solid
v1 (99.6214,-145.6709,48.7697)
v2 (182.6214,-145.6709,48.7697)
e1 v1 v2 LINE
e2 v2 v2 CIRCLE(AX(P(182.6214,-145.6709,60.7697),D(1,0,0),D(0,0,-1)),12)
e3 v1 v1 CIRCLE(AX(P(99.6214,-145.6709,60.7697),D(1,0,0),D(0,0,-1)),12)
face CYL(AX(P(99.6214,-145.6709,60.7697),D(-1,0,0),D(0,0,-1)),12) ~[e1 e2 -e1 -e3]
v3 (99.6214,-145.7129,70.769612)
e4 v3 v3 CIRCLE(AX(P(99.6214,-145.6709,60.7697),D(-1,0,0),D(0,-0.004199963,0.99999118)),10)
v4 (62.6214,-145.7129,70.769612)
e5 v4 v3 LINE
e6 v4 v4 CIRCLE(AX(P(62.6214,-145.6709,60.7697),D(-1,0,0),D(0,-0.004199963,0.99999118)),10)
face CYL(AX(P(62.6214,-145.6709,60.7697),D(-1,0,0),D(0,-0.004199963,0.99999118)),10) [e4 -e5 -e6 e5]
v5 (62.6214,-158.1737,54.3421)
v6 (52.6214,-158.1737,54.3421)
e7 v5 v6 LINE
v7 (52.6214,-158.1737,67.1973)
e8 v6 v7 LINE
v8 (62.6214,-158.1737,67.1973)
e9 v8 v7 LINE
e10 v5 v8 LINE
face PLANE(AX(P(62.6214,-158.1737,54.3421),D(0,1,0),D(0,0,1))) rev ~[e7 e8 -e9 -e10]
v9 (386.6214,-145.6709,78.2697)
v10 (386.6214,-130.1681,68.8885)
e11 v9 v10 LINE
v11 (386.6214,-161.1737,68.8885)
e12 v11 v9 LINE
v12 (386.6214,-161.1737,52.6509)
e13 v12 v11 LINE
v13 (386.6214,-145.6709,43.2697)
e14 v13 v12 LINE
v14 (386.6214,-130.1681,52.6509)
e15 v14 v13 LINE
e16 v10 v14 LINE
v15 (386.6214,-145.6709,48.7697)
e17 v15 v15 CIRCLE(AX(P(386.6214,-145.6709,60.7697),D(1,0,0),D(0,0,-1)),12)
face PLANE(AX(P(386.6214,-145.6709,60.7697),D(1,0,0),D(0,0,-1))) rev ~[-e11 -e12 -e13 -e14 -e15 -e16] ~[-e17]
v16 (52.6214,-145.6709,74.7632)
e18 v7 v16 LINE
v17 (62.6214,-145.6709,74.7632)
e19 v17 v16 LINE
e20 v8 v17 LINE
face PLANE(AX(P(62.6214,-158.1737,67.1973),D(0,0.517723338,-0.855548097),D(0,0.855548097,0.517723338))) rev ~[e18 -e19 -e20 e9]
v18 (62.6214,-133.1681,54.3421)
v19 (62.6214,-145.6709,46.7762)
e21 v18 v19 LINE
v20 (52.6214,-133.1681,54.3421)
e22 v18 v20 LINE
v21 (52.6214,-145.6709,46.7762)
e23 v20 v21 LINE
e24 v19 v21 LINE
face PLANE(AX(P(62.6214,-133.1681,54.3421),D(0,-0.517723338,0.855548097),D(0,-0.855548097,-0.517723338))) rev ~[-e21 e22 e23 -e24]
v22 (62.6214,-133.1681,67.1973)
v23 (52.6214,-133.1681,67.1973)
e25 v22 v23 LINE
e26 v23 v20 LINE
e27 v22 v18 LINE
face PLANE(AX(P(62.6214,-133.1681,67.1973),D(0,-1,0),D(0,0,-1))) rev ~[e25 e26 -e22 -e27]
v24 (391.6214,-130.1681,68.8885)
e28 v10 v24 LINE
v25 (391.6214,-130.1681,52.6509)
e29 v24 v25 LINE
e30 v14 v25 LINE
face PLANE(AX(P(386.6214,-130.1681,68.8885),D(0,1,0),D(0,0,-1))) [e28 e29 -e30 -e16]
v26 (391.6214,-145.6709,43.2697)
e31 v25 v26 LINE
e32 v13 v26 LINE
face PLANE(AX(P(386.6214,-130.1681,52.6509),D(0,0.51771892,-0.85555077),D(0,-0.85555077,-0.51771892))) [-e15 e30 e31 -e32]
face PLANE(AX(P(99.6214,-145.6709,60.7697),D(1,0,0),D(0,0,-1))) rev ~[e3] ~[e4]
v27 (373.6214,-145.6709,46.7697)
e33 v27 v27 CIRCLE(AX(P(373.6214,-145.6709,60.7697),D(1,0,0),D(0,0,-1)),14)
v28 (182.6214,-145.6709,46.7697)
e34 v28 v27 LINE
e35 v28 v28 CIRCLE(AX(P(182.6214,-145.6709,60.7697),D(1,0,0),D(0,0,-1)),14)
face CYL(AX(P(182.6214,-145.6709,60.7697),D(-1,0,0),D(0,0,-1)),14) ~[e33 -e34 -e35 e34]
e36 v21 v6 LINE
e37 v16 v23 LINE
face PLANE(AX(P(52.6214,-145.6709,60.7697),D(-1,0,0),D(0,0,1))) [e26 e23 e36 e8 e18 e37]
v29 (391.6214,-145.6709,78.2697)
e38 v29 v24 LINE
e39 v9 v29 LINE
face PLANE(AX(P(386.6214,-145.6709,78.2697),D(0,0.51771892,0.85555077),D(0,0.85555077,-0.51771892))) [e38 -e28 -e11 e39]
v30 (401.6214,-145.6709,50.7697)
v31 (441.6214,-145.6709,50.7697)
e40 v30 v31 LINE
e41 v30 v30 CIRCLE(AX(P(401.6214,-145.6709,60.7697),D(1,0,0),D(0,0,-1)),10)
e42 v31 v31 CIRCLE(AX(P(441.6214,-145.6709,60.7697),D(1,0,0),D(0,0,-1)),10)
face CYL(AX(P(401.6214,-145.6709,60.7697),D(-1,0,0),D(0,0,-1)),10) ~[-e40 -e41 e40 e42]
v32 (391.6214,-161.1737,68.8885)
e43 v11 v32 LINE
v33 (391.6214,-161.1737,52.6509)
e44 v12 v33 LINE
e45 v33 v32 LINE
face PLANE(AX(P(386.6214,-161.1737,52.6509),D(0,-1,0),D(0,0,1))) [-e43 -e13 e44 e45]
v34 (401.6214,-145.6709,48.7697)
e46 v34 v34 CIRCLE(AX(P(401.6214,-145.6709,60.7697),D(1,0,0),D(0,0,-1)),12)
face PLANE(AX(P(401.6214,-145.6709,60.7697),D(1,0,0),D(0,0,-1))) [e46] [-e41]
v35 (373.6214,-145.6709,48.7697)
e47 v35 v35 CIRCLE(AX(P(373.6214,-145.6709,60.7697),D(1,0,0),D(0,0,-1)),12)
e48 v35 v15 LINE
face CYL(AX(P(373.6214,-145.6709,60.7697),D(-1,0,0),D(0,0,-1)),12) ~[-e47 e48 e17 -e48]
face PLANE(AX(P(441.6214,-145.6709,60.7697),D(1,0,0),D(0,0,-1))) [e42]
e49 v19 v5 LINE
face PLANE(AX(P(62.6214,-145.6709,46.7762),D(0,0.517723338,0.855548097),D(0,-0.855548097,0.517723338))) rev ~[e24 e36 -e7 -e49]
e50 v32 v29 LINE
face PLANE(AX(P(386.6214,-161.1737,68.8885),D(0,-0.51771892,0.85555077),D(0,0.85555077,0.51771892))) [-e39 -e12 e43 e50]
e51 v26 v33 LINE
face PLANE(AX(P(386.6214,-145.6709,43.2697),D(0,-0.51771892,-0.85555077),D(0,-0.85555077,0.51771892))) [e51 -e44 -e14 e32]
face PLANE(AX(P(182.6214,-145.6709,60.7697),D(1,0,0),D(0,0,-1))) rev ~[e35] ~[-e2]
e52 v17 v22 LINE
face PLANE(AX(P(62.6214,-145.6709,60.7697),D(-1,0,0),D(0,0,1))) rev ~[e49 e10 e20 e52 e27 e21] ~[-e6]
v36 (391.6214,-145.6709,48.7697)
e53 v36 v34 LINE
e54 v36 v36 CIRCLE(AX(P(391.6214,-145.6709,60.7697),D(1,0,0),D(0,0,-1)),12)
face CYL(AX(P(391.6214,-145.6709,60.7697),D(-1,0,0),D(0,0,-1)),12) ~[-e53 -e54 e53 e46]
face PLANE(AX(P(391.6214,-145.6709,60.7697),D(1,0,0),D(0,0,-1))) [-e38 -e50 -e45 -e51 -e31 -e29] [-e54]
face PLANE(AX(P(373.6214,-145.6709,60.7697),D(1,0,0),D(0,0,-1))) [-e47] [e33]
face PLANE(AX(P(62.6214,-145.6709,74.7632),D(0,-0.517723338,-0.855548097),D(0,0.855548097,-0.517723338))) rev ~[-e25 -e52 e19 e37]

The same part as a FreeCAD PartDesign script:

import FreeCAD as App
import Part
import Sketcher

V = App.Vector
Q = App.Units.Quantity

doc = App.newDocument("Part")
params = doc.addObject("Spreadsheet::Sheet", "Params")
for row, (alias, value) in enumerate([
    ("sketch1_diameter", "20 mm"),
    ("pad1_length", "37 mm"),
    ("sketch2_diameter", "24 mm"),
    ("pad2_length", "83 mm"),
    ("sketch3_diameter", "28 mm"),
    ("pad3_length", "191 mm"),
    ("sketch4_diameter", "24 mm"),
    ("pad4_length", "13 mm"),
    ("pad5_length", "5 mm"),
    ("sketch6_diameter", "24 mm"),
    ("pad6_length", "10 mm"),
    ("sketch7_diameter", "20 mm"),
    ("pad7_length", "40 mm"),
    ("pad8_length", "10 mm"),
], start=1):
    params.set(f"A{row}", alias)
    params.set(f"B{row}", "=" + value)
    params.setAlias(f"B{row}", alias)

body = doc.addObject("PartDesign::Body", "Body")

# Sketch on YZ plane
sketch1 = body.newObject("Sketcher::SketchObject", "Sketch")
sketch1.AttachmentSupport = (doc.getObject("YZ_Plane"), [""])
sketch1.MapMode = "FlatFace"
sketch1.AttachmentOffset = App.Placement(V(0, 0, 62.6214), App.Rotation())
sketch1.addGeometry(Part.Circle(V(-146, 61, 0), V(0, 0, 1), 10), False)
sketch1.addConstraint(Sketcher.Constraint("Diameter", 0, 20.0))
sketch1.addConstraint(Sketcher.Constraint("DistanceX", 0, 3, -1, 1, 145.671))
sketch1.addConstraint(Sketcher.Constraint("DistanceY", -1, 1, 0, 3, 60.7697))
sketch1.setExpression("Constraints[0]", "Params.sketch1_diameter")
pad1 = body.newObject("PartDesign::Pad", "Pad")
pad1.Profile = sketch1
pad1.setExpression("Length", "Params.pad1_length")

# Sketch on YZ plane
sketch2 = body.newObject("Sketcher::SketchObject", "Sketch001")
sketch2.AttachmentSupport = (doc.getObject("YZ_Plane"), [""])
sketch2.MapMode = "FlatFace"
sketch2.AttachmentOffset = App.Placement(V(0, 0, 99.6214), App.Rotation())
sketch2.addGeometry(Part.Circle(V(-146, 61, 0), V(0, 0, 1), 12), False)
sketch2.addConstraint(Sketcher.Constraint("Diameter", 0, 24.0))
sketch2.addConstraint(Sketcher.Constraint("DistanceX", 0, 3, -1, 1, 145.671))
sketch2.addConstraint(Sketcher.Constraint("DistanceY", -1, 1, 0, 3, 60.7697))
sketch2.setExpression("Constraints[0]", "Params.sketch2_diameter")
pad2 = body.newObject("PartDesign::Pad", "Pad001")
pad2.Profile = sketch2
pad2.setExpression("Length", "Params.pad2_length")

# Sketch on YZ plane
sketch3 = body.newObject("Sketcher::SketchObject", "Sketch002")
sketch3.AttachmentSupport = (doc.getObject("YZ_Plane"), [""])
sketch3.MapMode = "FlatFace"
sketch3.AttachmentOffset = App.Placement(V(0, 0, 182.6214), App.Rotation())
sketch3.addGeometry(Part.Circle(V(-146, 61, 0), V(0, 0, 1), 14), False)
sketch3.addConstraint(Sketcher.Constraint("Diameter", 0, 28.0))
sketch3.addConstraint(Sketcher.Constraint("DistanceX", 0, 3, -1, 1, 145.671))
sketch3.addConstraint(Sketcher.Constraint("DistanceY", -1, 1, 0, 3, 60.7697))
sketch3.setExpression("Constraints[0]", "Params.sketch3_diameter")
pad3 = body.newObject("PartDesign::Pad", "Pad002")
pad3.Profile = sketch3
pad3.setExpression("Length", "Params.pad3_length")

# Sketch on YZ plane
sketch4 = body.newObject("Sketcher::SketchObject", "Sketch003")
sketch4.AttachmentSupport = (doc.getObject("YZ_Plane"), [""])
sketch4.MapMode = "FlatFace"
sketch4.AttachmentOffset = App.Placement(V(0, 0, 373.6214), App.Rotation())
sketch4.addGeometry(Part.Circle(V(-146, 61, 0), V(0, 0, 1), 12), False)
sketch4.addConstraint(Sketcher.Constraint("Diameter", 0, 24.0))
sketch4.addConstraint(Sketcher.Constraint("DistanceX", 0, 3, -1, 1, 145.671))
sketch4.addConstraint(Sketcher.Constraint("DistanceY", -1, 1, 0, 3, 60.7697))
sketch4.setExpression("Constraints[0]", "Params.sketch4_diameter")
pad4 = body.newObject("PartDesign::Pad", "Pad003")
pad4.Profile = sketch4
pad4.setExpression("Length", "Params.pad4_length")

# Sketch on YZ plane
sketch5 = body.newObject("Sketcher::SketchObject", "Sketch004")
sketch5.AttachmentSupport = (doc.getObject("YZ_Plane"), [""])
sketch5.MapMode = "FlatFace"
sketch5.AttachmentOffset = App.Placement(V(0, 0, 386.6214), App.Rotation())
sketch5.addGeometry(Part.LineSegment(V(-130, 53, 0), V(-130, 69, 0)), False)
sketch5.addGeometry(Part.LineSegment(V(-130, 69, 0), V(-146, 78, 0)), False)
sketch5.addGeometry(Part.LineSegment(V(-146, 78, 0), V(-161, 69, 0)), False)
sketch5.addGeometry(Part.LineSegment(V(-161, 69, 0), V(-161, 53, 0)), False)
sketch5.addGeometry(Part.LineSegment(V(-161, 53, 0), V(-146, 43, 0)), False)
sketch5.addGeometry(Part.LineSegment(V(-146, 43, 0), V(-130, 53, 0)), False)
sketch5.addConstraint(Sketcher.Constraint("Coincident", 0, 2, 1, 1))
sketch5.addConstraint(Sketcher.Constraint("Coincident", 1, 2, 2, 1))
sketch5.addConstraint(Sketcher.Constraint("Coincident", 2, 2, 3, 1))
sketch5.addConstraint(Sketcher.Constraint("Coincident", 3, 2, 4, 1))
sketch5.addConstraint(Sketcher.Constraint("Coincident", 4, 2, 5, 1))
sketch5.addConstraint(Sketcher.Constraint("Coincident", 5, 2, 0, 1))
sketch5.addConstraint(Sketcher.Constraint("Vertical", 0))
sketch5.addConstraint(Sketcher.Constraint("Vertical", 3))
sketch5.addConstraint(Sketcher.Constraint("Parallel", 1, 4))
sketch5.addConstraint(Sketcher.Constraint("Parallel", 2, 5))
sketch5.addConstraint(Sketcher.Constraint("Horizontal", 0, 2, 2, 2))
sketch5.addConstraint(Sketcher.Constraint("Horizontal", 3, 2, 5, 2))
sketch5.addConstraint(Sketcher.Constraint("Vertical", 1, 2, 4, 2))
sketch5.addConstraint(Sketcher.Constraint("DistanceY", 4, 2, 1, 2, 35.0))
sketch5.addConstraint(Sketcher.Constraint("Angle", 1, Q("148.8206 deg")))
sketch5.addConstraint(Sketcher.Constraint("DistanceY", 0, 1, 0, 2, 16.2376))
sketch5.addConstraint(Sketcher.Constraint("DistanceX", 0, 2, -1, 1, 130.168))
sketch5.addConstraint(Sketcher.Constraint("DistanceY", -1, 1, 3, 2, 52.651))
pad5 = body.newObject("PartDesign::Pad", "Pad004")
pad5.Profile = sketch5
pad5.setExpression("Length", "Params.pad5_length")

# Sketch on YZ plane
sketch6 = body.newObject("Sketcher::SketchObject", "Sketch005")
sketch6.AttachmentSupport = (doc.getObject("YZ_Plane"), [""])
sketch6.MapMode = "FlatFace"
sketch6.AttachmentOffset = App.Placement(V(0, 0, 391.6214), App.Rotation())
sketch6.addGeometry(Part.Circle(V(-146, 61, 0), V(0, 0, 1), 12), False)
sketch6.addConstraint(Sketcher.Constraint("Diameter", 0, 24.0))
sketch6.addConstraint(Sketcher.Constraint("DistanceX", 0, 3, -1, 1, 145.671))
sketch6.addConstraint(Sketcher.Constraint("DistanceY", -1, 1, 0, 3, 60.7697))
sketch6.setExpression("Constraints[0]", "Params.sketch6_diameter")
pad6 = body.newObject("PartDesign::Pad", "Pad005")
pad6.Profile = sketch6
pad6.setExpression("Length", "Params.pad6_length")

# Sketch on YZ plane
sketch7 = body.newObject("Sketcher::SketchObject", "Sketch006")
sketch7.AttachmentSupport = (doc.getObject("YZ_Plane"), [""])
sketch7.MapMode = "FlatFace"
sketch7.AttachmentOffset = App.Placement(V(0, 0, 401.6214), App.Rotation())
sketch7.addGeometry(Part.Circle(V(-146, 61, 0), V(0, 0, 1), 10), False)
sketch7.addConstraint(Sketcher.Constraint("Diameter", 0, 20.0))
sketch7.addConstraint(Sketcher.Constraint("DistanceX", 0, 3, -1, 1, 145.671))
sketch7.addConstraint(Sketcher.Constraint("DistanceY", -1, 1, 0, 3, 60.7697))
sketch7.setExpression("Constraints[0]", "Params.sketch7_diameter")
pad7 = body.newObject("PartDesign::Pad", "Pad006")
pad7.Profile = sketch7
pad7.setExpression("Length", "Params.pad7_length")

# Sketch on YZ plane
sketch8 = body.newObject("Sketcher::SketchObject", "Sketch007")
sketch8.AttachmentSupport = (doc.getObject("YZ_Plane"), [""])
sketch8.MapMode = "FlatFace"
sketch8.AttachmentOffset = App.Placement(V(0, 0, 62.6214), App.Rotation())
sketch8.addGeometry(Part.LineSegment(V(-158, 67, 0), V(-146, 75, 0)), False)
sketch8.addGeometry(Part.LineSegment(V(-146, 75, 0), V(-133, 67, 0)), False)
sketch8.addGeometry(Part.LineSegment(V(-133, 67, 0), V(-133, 54, 0)), False)
sketch8.addGeometry(Part.LineSegment(V(-133, 54, 0), V(-146, 47, 0)), False)
sketch8.addGeometry(Part.LineSegment(V(-146, 47, 0), V(-158, 54, 0)), False)
sketch8.addGeometry(Part.LineSegment(V(-158, 54, 0), V(-158, 67, 0)), False)
sketch8.addConstraint(Sketcher.Constraint("Coincident", 0, 2, 1, 1))
sketch8.addConstraint(Sketcher.Constraint("Coincident", 1, 2, 2, 1))
sketch8.addConstraint(Sketcher.Constraint("Coincident", 2, 2, 3, 1))
sketch8.addConstraint(Sketcher.Constraint("Coincident", 3, 2, 4, 1))
sketch8.addConstraint(Sketcher.Constraint("Coincident", 4, 2, 5, 1))
sketch8.addConstraint(Sketcher.Constraint("Coincident", 5, 2, 0, 1))
sketch8.addConstraint(Sketcher.Constraint("Vertical", 2))
sketch8.addConstraint(Sketcher.Constraint("Vertical", 5))
sketch8.addConstraint(Sketcher.Constraint("Parallel", 0, 3))
sketch8.addConstraint(Sketcher.Constraint("Parallel", 1, 4))
sketch8.addConstraint(Sketcher.Constraint("Horizontal", 2, 2, 4, 2))
sketch8.addConstraint(Sketcher.Constraint("Horizontal", 1, 2, 5, 2))
sketch8.addConstraint(Sketcher.Constraint("Vertical", 0, 2, 3, 2))
sketch8.addConstraint(Sketcher.Constraint("Angle", 0, Q("31.1797 deg")))
sketch8.addConstraint(Sketcher.Constraint("DistanceY", 2, 2, 2, 1, 12.8552))
sketch8.addConstraint(Sketcher.Constraint("DistanceX", 0, 2, -1, 1, 145.671))
sketch8.addConstraint(Sketcher.Constraint("DistanceX", 1, 2, -1, 1, 133.168))
sketch8.addConstraint(Sketcher.Constraint("DistanceY", -1, 1, 2, 2, 54.342))
pad8 = body.newObject("PartDesign::Pad", "Pad007")
pad8.Profile = sketch8
pad8.setExpression("Length", "Params.pad8_length")
pad8.Reversed = True

doc.recompute()
